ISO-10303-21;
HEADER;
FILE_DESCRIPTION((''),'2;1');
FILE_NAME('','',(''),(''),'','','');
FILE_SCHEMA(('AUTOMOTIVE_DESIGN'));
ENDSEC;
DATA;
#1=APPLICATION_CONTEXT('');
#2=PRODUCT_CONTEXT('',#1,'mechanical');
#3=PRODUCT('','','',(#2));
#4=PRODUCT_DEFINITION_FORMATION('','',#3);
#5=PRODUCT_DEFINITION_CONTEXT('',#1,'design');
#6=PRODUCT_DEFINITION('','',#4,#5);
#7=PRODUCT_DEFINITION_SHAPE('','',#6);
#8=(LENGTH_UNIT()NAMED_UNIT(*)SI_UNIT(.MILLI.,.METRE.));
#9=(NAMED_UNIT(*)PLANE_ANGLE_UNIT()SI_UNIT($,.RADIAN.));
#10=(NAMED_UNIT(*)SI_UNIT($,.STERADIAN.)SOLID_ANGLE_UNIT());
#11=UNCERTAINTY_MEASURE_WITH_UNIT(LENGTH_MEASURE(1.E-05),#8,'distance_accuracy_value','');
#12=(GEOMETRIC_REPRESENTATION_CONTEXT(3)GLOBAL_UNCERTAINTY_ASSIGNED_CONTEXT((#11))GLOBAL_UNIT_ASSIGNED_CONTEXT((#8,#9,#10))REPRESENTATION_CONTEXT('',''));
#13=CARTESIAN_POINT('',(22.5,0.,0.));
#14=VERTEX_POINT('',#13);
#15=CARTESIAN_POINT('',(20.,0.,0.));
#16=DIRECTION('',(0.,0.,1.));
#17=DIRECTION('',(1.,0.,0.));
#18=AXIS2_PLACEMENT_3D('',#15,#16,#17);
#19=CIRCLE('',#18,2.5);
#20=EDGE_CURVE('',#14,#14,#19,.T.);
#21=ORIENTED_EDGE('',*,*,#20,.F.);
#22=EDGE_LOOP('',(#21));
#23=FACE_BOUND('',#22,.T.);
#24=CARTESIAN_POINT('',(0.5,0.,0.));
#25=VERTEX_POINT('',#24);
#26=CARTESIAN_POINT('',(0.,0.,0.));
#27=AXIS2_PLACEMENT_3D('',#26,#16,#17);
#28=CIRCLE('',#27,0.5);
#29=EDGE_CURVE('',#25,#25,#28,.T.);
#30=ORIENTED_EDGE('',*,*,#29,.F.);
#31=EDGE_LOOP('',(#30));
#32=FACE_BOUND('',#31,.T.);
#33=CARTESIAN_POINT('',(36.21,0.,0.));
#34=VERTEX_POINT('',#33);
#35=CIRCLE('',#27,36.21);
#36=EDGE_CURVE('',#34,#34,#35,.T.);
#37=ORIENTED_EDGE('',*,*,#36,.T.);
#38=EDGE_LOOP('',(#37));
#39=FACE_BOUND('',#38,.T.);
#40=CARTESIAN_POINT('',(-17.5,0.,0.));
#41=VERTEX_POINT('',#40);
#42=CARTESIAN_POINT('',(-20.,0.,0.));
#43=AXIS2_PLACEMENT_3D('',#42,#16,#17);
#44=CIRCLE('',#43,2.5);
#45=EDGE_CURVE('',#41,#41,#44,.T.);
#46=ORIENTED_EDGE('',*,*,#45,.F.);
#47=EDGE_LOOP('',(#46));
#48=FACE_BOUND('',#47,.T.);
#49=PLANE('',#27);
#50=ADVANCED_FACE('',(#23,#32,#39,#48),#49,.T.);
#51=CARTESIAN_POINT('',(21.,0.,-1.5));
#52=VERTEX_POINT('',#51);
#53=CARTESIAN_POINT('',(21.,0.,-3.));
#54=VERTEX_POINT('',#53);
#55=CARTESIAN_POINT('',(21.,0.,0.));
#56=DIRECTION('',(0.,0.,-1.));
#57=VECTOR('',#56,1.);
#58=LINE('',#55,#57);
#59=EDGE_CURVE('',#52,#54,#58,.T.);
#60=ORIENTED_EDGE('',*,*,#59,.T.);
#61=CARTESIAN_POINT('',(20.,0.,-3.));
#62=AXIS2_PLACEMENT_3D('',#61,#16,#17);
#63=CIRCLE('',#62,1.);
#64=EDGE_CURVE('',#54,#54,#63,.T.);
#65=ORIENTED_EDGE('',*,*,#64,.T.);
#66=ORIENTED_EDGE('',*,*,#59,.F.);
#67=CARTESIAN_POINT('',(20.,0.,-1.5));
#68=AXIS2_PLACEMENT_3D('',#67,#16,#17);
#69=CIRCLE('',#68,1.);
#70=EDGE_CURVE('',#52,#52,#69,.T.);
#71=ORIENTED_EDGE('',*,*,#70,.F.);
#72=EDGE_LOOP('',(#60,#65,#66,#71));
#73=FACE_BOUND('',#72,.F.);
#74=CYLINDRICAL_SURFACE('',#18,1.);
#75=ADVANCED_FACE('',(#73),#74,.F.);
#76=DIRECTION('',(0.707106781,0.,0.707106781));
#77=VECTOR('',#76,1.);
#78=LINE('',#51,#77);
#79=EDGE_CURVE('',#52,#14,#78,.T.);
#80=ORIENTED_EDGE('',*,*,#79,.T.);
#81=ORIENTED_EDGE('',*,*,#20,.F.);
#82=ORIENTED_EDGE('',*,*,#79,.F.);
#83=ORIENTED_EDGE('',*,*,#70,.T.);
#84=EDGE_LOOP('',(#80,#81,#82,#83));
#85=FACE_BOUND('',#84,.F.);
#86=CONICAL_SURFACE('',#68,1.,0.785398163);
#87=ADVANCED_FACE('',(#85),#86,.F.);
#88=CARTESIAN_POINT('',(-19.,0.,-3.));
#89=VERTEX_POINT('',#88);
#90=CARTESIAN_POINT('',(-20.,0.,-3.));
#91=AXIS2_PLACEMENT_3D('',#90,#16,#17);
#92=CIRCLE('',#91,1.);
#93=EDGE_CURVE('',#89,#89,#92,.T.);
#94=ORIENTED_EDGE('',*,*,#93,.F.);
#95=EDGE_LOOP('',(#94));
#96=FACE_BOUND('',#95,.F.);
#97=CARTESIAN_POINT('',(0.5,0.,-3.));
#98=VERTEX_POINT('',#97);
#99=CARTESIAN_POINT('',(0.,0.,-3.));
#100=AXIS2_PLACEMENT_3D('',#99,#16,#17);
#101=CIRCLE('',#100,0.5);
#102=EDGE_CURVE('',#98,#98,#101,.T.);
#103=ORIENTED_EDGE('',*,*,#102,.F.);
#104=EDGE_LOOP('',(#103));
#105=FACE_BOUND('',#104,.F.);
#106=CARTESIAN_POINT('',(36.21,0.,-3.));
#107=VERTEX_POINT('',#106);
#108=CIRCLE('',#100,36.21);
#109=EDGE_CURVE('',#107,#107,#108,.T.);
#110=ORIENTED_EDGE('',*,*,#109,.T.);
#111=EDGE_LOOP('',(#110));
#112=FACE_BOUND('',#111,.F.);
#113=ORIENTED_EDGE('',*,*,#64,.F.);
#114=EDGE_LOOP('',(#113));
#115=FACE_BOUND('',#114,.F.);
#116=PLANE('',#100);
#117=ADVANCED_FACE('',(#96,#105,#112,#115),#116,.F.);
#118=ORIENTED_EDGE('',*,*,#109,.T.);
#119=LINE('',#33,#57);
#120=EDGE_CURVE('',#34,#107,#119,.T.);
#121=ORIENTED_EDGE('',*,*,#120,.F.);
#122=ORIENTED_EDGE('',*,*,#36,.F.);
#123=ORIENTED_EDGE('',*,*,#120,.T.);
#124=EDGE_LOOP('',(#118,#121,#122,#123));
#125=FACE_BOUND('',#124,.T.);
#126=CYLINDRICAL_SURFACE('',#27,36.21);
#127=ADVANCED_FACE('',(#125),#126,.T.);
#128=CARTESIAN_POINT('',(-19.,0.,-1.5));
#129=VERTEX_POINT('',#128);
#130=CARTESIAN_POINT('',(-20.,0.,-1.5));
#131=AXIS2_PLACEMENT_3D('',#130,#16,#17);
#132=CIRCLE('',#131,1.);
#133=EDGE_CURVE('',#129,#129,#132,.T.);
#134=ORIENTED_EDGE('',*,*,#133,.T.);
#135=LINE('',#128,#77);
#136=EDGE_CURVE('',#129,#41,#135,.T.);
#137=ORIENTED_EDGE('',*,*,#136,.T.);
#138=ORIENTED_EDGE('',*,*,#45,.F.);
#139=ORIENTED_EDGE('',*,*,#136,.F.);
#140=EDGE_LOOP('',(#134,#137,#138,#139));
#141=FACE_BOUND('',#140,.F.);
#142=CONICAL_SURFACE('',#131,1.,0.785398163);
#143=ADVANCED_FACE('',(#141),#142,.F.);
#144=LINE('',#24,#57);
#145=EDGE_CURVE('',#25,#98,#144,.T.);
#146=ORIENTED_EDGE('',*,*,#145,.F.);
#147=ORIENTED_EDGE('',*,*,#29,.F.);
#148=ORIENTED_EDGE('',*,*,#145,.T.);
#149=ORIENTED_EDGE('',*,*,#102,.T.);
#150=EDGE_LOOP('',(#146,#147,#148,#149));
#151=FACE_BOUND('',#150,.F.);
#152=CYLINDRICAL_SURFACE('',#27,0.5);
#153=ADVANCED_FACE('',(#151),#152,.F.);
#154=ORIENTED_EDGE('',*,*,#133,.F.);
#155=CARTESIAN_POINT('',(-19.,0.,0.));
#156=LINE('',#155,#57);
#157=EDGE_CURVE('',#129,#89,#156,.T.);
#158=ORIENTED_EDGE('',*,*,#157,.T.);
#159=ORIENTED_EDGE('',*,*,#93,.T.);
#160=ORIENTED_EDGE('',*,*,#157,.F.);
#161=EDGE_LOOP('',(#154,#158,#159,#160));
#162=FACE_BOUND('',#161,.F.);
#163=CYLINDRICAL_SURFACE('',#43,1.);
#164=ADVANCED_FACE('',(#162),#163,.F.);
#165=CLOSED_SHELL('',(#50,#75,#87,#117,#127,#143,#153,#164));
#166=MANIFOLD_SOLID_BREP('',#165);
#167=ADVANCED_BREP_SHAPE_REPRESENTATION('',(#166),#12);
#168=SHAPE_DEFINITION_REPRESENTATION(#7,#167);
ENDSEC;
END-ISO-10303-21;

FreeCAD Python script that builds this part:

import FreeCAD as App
import Part
import Sketcher
from FreeCAD import Vector
Q = App.Units.Quantity


def edges_at(feature, points):
    """Names of the edges that pass closest to the given points."""
    edges = feature.Shape.Edges
    near = lambda p: min(range(len(edges)), key=lambda i: edges[i].distToShape(Part.Vertex(*p))[0])
    return sorted({f"Edge{near(p) + 1}" for p in points})

doc = App.newDocument("Part")
params = doc.addObject("Spreadsheet::Sheet", "Params")
for row, (alias, value) in enumerate([
    ("sketch1_diameter", "2 mm"),
    ("sketch1_diameter2", "1 mm"),
    ("sketch1_diameter3", "72.42 mm"),
    ("pad1_length", "3 mm"),
    ("chamfer_size", "1.5 mm"),
], start=1):
    params.set(f"A{row}", alias)
    params.set(f"B{row}", "=" + value)
    params.setAlias(f"B{row}", alias)

body = doc.addObject("PartDesign::Body", "Body")

sketch1 = doc.addObject("Sketcher::SketchObject", "Sketch")
body.addObject(sketch1)
sketch1.AttachmentSupport = (doc.XY_Plane, [""])
sketch1.MapMode = "FlatFace"
sketch1.addGeometry(Part.Circle(Vector(0, 0, 0), Vector(0, 0, 1), 36.2), False)
sketch1.addGeometry(Part.Circle(Vector(-20, 0, 0), Vector(0, 0, 1), 1), False)
sketch1.addGeometry(Part.Circle(Vector(0, 0, 0), Vector(0, 0, 1), 0.5), False)
sketch1.addGeometry(Part.Circle(Vector(20, 0, 0), Vector(0, 0, 1), 1), False)
sketch1.addConstraint(Sketcher.Constraint("Coincident", 0, 3, -1, 1))
sketch1.addConstraint(Sketcher.Constraint("Coincident", 2, 3, -1, 1))
sketch1.addConstraint(Sketcher.Constraint("Equal", 1, 3))
sketch1.addConstraint(Sketcher.Constraint("Symmetric", 1, 3, 3, 3, -1, 1))
sketch1.addConstraint(Sketcher.Constraint("PointOnObject", 1, 3, -1))
sketch1.addConstraint(Sketcher.Constraint("Diameter", 1, Q("2 mm")))
sketch1.addConstraint(Sketcher.Constraint("Diameter", 2, Q("1 mm")))
sketch1.addConstraint(Sketcher.Constraint("Diameter", 0, Q("72.42 mm")))
sketch1.addConstraint(Sketcher.Constraint("DistanceX", 1, 3, -1, 1, Q("20 mm")))
sketch1.setExpression("Constraints[5]", "Params.sketch1_diameter")
sketch1.setExpression("Constraints[6]", "Params.sketch1_diameter2")
sketch1.setExpression("Constraints[7]", "Params.sketch1_diameter3")
pad1 = doc.addObject("PartDesign::Pad", "Pad")
body.addObject(pad1)
pad1.Profile = sketch1
pad1.setExpression("Length", "Params.pad1_length")
pad1.Reversed = True
doc.recompute()

chamfer = doc.addObject("PartDesign::Chamfer", "Chamfer")
body.addObject(chamfer)
chamfer.Base = (pad1, edges_at(pad1, [(19, 0, 0), (-21, 0, 0)]))
chamfer.setExpression("Size", "Params.chamfer_size")

doc.recompute()
